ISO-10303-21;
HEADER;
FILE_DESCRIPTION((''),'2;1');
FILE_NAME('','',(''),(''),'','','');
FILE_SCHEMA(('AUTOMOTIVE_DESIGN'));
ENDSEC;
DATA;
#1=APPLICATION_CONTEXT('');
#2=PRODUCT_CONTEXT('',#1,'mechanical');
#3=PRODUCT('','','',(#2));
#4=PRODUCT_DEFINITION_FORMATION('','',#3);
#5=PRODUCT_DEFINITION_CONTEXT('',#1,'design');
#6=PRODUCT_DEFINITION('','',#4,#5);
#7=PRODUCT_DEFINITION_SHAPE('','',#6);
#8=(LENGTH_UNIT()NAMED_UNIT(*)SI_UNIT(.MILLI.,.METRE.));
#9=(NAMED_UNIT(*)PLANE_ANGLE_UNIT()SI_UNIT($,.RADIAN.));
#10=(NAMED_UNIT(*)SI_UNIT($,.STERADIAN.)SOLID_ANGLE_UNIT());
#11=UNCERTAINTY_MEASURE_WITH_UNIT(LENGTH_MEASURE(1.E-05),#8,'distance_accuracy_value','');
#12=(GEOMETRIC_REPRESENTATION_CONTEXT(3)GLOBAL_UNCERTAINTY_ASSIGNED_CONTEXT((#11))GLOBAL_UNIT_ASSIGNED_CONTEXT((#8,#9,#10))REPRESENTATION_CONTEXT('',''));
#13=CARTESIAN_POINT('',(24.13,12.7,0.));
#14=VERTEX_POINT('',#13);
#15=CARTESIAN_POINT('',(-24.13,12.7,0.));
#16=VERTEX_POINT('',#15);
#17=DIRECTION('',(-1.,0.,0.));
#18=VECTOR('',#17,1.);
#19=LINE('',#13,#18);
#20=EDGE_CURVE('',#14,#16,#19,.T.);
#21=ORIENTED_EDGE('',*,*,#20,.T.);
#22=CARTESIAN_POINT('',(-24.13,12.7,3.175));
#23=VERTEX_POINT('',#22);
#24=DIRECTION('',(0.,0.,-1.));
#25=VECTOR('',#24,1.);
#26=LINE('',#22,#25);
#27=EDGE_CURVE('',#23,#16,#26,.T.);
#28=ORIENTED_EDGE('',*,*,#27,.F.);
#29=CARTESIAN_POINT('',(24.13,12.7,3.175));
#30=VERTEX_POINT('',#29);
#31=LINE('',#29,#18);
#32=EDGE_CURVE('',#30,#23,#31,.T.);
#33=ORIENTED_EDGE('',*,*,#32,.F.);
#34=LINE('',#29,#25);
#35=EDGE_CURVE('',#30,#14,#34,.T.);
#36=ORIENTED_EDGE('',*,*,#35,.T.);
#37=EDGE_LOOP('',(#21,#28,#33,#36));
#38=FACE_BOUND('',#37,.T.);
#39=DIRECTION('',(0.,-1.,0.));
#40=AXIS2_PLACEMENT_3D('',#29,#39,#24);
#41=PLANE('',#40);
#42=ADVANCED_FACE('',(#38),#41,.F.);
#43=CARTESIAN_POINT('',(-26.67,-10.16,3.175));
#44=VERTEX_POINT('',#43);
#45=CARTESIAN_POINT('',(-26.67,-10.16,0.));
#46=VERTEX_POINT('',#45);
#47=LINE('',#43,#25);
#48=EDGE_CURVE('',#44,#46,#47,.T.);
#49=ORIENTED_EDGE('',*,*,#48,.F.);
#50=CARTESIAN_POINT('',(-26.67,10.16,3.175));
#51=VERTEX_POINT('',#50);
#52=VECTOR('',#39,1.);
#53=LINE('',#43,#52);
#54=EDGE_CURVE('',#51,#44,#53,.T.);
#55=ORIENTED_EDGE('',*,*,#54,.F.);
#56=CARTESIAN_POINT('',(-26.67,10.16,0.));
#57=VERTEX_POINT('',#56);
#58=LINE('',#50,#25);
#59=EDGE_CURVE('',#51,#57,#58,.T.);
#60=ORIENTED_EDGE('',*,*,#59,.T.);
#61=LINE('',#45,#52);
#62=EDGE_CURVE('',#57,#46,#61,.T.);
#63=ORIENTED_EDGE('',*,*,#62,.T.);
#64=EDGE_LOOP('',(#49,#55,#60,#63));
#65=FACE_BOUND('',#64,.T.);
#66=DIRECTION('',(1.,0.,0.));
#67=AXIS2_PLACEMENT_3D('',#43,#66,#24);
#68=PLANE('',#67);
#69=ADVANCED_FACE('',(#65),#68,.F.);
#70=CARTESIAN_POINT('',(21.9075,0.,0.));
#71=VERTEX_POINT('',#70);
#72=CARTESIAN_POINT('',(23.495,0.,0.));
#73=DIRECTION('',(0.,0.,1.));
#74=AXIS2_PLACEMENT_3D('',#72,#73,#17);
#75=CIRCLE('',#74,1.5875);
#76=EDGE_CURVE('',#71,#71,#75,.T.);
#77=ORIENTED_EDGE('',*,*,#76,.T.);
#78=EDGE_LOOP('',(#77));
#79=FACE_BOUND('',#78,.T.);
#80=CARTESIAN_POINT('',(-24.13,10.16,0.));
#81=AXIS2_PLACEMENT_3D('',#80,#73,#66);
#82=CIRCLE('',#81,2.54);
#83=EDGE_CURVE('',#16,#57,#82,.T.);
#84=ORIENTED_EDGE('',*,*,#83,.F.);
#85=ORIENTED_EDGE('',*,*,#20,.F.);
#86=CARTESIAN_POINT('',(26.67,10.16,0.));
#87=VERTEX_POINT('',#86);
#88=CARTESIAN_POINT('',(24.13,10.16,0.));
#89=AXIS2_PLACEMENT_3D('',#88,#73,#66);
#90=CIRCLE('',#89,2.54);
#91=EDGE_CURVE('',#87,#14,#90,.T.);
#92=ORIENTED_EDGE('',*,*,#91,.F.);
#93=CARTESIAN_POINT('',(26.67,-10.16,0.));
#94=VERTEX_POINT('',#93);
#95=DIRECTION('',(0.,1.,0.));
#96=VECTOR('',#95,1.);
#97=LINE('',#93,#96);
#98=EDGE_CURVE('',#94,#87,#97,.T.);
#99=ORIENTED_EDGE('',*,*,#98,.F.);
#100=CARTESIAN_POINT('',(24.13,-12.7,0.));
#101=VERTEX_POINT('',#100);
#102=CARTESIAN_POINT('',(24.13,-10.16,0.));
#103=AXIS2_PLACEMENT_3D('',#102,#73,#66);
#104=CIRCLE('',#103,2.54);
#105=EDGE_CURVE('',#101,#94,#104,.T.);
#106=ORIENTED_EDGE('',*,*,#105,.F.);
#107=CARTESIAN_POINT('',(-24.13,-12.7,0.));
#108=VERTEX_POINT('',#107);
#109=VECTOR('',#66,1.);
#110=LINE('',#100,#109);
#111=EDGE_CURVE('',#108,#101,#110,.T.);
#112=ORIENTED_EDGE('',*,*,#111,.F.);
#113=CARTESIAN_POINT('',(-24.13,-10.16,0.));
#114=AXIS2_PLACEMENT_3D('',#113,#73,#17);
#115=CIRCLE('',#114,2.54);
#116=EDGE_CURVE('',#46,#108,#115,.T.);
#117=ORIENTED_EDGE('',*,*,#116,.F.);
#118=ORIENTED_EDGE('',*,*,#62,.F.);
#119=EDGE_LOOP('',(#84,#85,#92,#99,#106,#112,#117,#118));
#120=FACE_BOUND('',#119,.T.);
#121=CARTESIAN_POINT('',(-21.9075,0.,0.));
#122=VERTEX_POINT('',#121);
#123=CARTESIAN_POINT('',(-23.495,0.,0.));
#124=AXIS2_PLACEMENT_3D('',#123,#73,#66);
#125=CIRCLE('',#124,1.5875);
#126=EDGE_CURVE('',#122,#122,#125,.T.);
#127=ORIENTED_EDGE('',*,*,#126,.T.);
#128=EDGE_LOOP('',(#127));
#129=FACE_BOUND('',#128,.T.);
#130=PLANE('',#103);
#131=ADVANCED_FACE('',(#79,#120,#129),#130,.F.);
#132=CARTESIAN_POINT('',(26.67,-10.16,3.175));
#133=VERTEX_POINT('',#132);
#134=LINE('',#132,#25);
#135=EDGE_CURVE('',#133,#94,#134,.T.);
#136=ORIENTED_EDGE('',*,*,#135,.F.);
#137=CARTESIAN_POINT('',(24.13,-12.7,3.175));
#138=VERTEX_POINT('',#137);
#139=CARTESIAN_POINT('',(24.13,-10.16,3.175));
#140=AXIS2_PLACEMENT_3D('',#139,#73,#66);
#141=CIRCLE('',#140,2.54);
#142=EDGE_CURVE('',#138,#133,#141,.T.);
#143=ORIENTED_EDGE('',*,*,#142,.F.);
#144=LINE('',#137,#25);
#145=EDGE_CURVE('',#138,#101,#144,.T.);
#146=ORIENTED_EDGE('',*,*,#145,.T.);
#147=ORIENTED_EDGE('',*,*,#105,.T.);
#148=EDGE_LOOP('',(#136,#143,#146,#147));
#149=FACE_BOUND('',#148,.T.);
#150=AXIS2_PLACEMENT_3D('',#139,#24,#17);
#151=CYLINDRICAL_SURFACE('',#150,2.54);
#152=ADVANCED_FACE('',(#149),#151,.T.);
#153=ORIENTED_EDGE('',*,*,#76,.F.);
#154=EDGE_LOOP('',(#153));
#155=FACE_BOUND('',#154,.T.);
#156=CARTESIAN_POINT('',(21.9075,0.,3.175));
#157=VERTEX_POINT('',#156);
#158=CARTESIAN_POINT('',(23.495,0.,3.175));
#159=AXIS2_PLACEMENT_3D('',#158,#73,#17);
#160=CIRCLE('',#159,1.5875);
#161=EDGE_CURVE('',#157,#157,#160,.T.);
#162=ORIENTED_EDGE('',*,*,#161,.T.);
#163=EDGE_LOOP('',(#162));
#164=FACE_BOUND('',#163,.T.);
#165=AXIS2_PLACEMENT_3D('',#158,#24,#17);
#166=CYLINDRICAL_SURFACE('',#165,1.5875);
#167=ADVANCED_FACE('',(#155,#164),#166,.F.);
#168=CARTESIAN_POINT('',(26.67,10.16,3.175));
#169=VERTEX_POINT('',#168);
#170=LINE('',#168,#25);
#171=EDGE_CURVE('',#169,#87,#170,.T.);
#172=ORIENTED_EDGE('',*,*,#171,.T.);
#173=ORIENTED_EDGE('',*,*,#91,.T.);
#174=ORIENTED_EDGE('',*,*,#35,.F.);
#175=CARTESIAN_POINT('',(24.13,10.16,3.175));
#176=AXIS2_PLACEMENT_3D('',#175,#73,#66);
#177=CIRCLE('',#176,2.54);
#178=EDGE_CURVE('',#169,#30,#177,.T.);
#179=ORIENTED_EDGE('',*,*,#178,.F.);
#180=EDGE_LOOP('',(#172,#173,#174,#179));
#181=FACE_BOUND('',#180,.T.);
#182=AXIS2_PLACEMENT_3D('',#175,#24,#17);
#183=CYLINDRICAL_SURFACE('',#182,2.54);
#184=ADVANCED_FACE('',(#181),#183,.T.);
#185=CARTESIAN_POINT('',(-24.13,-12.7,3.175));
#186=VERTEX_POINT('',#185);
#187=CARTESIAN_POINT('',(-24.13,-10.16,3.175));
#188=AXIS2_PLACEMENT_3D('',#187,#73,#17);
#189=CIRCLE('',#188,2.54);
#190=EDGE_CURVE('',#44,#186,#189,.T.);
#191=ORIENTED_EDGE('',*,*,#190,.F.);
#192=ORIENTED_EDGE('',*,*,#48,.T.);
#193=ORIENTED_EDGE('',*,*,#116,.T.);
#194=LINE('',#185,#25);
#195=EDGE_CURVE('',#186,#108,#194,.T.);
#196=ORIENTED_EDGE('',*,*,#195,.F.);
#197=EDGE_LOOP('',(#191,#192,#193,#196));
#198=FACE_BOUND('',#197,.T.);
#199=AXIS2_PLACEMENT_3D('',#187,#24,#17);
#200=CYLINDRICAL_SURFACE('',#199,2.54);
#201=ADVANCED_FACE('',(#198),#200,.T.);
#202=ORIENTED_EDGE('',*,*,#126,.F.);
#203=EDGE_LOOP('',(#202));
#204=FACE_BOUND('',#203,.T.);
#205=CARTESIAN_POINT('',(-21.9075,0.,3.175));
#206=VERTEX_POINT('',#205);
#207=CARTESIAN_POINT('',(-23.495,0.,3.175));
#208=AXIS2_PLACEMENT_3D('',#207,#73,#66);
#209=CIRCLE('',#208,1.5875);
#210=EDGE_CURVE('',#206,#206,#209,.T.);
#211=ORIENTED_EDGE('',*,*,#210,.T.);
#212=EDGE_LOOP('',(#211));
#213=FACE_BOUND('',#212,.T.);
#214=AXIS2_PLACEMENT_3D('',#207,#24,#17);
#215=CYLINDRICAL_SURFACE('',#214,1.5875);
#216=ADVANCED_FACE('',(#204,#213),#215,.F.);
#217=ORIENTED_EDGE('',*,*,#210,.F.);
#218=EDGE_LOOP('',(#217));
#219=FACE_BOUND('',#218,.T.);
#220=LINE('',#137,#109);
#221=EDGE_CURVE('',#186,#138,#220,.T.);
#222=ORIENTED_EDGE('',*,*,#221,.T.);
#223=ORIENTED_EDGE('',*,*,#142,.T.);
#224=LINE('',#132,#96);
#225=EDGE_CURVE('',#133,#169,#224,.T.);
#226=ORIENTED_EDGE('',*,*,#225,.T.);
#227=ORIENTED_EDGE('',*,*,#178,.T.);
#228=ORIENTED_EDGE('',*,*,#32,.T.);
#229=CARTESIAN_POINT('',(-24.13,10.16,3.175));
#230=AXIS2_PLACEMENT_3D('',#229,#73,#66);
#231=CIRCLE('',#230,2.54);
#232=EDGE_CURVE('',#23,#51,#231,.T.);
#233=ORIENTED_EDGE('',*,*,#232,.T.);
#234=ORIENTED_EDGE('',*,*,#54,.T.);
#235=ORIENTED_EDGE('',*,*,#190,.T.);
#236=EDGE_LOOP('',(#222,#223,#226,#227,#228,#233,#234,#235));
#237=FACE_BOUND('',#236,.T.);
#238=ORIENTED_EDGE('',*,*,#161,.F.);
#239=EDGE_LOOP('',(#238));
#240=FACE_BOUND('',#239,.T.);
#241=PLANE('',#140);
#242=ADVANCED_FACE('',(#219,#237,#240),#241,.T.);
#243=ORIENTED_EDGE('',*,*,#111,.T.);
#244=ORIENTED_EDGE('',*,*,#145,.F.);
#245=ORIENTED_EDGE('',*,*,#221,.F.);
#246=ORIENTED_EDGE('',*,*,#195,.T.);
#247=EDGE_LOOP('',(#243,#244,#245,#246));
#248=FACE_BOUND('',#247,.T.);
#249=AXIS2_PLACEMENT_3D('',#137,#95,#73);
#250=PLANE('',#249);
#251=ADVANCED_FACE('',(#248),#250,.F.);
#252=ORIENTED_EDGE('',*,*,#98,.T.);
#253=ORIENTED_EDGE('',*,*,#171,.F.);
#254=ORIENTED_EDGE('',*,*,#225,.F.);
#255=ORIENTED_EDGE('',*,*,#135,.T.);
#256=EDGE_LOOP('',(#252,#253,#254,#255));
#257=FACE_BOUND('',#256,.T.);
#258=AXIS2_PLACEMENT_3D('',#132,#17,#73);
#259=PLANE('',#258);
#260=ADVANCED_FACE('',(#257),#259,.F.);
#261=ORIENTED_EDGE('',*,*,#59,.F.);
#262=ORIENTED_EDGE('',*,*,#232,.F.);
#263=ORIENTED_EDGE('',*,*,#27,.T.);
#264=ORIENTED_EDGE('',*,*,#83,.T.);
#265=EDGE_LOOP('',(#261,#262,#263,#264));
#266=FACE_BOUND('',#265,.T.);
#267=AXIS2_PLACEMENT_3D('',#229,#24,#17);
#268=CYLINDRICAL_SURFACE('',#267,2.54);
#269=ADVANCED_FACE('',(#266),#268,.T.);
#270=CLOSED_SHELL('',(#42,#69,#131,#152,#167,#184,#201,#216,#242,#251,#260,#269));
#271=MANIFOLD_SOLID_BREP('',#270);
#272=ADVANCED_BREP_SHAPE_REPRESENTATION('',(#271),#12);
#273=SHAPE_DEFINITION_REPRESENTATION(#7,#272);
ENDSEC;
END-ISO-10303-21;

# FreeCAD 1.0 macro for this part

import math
import FreeCAD as App
import Part
import Sketcher
from FreeCAD import Vector
Q = App.Units.Quantity

doc = App.newDocument("Part")
params = doc.addObject("Spreadsheet::Sheet", "Params")
for row, (alias, value) in enumerate([
    ("sketch1_radius", "0.1 in"),
    ("sketch1_diameter", "0.125 in"),
    ("sketch1_width", "1.9 in"),
    ("sketch1_height", "0.8 in"),
    ("pad1_length", "0.125 in"),
], start=1):
    params.set(f"A{row}", alias)
    params.set(f"B{row}", "=" + value)
    params.setAlias(f"B{row}", alias)

body = doc.addObject("PartDesign::Body", "Body")

sketch1 = body.newObject("Sketcher::SketchObject", "Sketch")
sketch1.AttachmentSupport = (doc.getObject("XY_Plane"), [""])
sketch1.MapMode = "FlatFace"
sketch1.addGeometry(Part.LineSegment(Vector(-24.1, -12.7, 0), Vector(24.1, -12.7, 0)), False)
sketch1.addGeometry(Part.ArcOfCircle(Part.Circle(Vector(24.1, -10.2, 0), Vector(0, 0, 1), 2.5), math.radians(-90), math.radians(0)), False)
sketch1.addGeometry(Part.LineSegment(Vector(26.7, -10.2, 0), Vector(26.7, 10.2, 0)), False)
sketch1.addGeometry(Part.ArcOfCircle(Part.Circle(Vector(24.1, 10.2, 0), Vector(0, 0, 1), 2.5), math.radians(0), math.radians(90)), False)
sketch1.addGeometry(Part.LineSegment(Vector(24.1, 12.7, 0), Vector(-24.1, 12.7, 0)), False)
sketch1.addGeometry(Part.ArcOfCircle(Part.Circle(Vector(-24.1, 10.2, 0), Vector(0, 0, 1), 2.5), math.radians(90), math.radians(180)), False)
sketch1.addGeometry(Part.LineSegment(Vector(-26.7, 10.2, 0), Vector(-26.7, -10.2, 0)), False)
sketch1.addGeometry(Part.ArcOfCircle(Part.Circle(Vector(-24.1, -10.2, 0), Vector(0, 0, 1), 2.5), math.radians(-180), math.radians(-90)), False)
sketch1.addGeometry(Part.Circle(Vector(23.5, 0, 0), Vector(0, 0, 1), 1.6), False)
sketch1.addGeometry(Part.Circle(Vector(-23.5, 0, 0), Vector(0, 0, 1), 1.6), False)
sketch1.addConstraint(Sketcher.Constraint("Tangent", 0, 2, 1, 1))
sketch1.addConstraint(Sketcher.Constraint("Tangent", 1, 2, 2, 1))
sketch1.addConstraint(Sketcher.Constraint("Tangent", 2, 2, 3, 1))
sketch1.addConstraint(Sketcher.Constraint("Tangent", 3, 2, 4, 1))
sketch1.addConstraint(Sketcher.Constraint("Tangent", 4, 2, 5, 1))
sketch1.addConstraint(Sketcher.Constraint("Tangent", 5, 2, 6, 1))
sketch1.addConstraint(Sketcher.Constraint("Tangent", 6, 2, 7, 1))
sketch1.addConstraint(Sketcher.Constraint("Tangent", 7, 2, 0, 1))
sketch1.addConstraint(Sketcher.Constraint("Horizontal", 0))
sketch1.addConstraint(Sketcher.Constraint("Vertical", 2))
sketch1.addConstraint(Sketcher.Constraint("Horizontal", 4))
sketch1.addConstraint(Sketcher.Constraint("Vertical", 6))
sketch1.addConstraint(Sketcher.Constraint("Equal", 1, 3))
sketch1.addConstraint(Sketcher.Constraint("Equal", 3, 5))
sketch1.addConstraint(Sketcher.Constraint("Equal", 5, 7))
sketch1.addConstraint(Sketcher.Constraint("Equal", 8, 9))
sketch1.addConstraint(Sketcher.Constraint("Symmetric", 1, 3, 5, 3, -1, 1))
sketch1.addConstraint(Sketcher.Constraint("Symmetric", 8, 3, 9, 3, -1, 1))
sketch1.addConstraint(Sketcher.Constraint("PointOnObject", 8, 3, -1))
sketch1.addConstraint(Sketcher.Constraint("Radius", 1, Q("0.1 in")))
sketch1.addConstraint(Sketcher.Constraint("Diameter", 8, Q("0.125 in")))
sketch1.addConstraint(Sketcher.Constraint("DistanceX", 0, 1, 0, 2, Q("1.9 in")))
sketch1.addConstraint(Sketcher.Constraint("DistanceY", 2, 1, 2, 2, Q("0.8 in")))
sketch1.addConstraint(Sketcher.Constraint("DistanceX", 9, 3, 8, 3, Q("1.85 in")))
sketch1.setExpression("Constraints[19]", "Params.sketch1_radius")
sketch1.setExpression("Constraints[20]", "Params.sketch1_diameter")
sketch1.setExpression("Constraints[21]", "Params.sketch1_width")
sketch1.setExpression("Constraints[22]", "Params.sketch1_height")
pad1 = body.newObject("PartDesign::Pad", "Pad")
pad1.Profile = sketch1
pad1.setExpression("Length", "Params.pad1_length")

doc.recompute()
